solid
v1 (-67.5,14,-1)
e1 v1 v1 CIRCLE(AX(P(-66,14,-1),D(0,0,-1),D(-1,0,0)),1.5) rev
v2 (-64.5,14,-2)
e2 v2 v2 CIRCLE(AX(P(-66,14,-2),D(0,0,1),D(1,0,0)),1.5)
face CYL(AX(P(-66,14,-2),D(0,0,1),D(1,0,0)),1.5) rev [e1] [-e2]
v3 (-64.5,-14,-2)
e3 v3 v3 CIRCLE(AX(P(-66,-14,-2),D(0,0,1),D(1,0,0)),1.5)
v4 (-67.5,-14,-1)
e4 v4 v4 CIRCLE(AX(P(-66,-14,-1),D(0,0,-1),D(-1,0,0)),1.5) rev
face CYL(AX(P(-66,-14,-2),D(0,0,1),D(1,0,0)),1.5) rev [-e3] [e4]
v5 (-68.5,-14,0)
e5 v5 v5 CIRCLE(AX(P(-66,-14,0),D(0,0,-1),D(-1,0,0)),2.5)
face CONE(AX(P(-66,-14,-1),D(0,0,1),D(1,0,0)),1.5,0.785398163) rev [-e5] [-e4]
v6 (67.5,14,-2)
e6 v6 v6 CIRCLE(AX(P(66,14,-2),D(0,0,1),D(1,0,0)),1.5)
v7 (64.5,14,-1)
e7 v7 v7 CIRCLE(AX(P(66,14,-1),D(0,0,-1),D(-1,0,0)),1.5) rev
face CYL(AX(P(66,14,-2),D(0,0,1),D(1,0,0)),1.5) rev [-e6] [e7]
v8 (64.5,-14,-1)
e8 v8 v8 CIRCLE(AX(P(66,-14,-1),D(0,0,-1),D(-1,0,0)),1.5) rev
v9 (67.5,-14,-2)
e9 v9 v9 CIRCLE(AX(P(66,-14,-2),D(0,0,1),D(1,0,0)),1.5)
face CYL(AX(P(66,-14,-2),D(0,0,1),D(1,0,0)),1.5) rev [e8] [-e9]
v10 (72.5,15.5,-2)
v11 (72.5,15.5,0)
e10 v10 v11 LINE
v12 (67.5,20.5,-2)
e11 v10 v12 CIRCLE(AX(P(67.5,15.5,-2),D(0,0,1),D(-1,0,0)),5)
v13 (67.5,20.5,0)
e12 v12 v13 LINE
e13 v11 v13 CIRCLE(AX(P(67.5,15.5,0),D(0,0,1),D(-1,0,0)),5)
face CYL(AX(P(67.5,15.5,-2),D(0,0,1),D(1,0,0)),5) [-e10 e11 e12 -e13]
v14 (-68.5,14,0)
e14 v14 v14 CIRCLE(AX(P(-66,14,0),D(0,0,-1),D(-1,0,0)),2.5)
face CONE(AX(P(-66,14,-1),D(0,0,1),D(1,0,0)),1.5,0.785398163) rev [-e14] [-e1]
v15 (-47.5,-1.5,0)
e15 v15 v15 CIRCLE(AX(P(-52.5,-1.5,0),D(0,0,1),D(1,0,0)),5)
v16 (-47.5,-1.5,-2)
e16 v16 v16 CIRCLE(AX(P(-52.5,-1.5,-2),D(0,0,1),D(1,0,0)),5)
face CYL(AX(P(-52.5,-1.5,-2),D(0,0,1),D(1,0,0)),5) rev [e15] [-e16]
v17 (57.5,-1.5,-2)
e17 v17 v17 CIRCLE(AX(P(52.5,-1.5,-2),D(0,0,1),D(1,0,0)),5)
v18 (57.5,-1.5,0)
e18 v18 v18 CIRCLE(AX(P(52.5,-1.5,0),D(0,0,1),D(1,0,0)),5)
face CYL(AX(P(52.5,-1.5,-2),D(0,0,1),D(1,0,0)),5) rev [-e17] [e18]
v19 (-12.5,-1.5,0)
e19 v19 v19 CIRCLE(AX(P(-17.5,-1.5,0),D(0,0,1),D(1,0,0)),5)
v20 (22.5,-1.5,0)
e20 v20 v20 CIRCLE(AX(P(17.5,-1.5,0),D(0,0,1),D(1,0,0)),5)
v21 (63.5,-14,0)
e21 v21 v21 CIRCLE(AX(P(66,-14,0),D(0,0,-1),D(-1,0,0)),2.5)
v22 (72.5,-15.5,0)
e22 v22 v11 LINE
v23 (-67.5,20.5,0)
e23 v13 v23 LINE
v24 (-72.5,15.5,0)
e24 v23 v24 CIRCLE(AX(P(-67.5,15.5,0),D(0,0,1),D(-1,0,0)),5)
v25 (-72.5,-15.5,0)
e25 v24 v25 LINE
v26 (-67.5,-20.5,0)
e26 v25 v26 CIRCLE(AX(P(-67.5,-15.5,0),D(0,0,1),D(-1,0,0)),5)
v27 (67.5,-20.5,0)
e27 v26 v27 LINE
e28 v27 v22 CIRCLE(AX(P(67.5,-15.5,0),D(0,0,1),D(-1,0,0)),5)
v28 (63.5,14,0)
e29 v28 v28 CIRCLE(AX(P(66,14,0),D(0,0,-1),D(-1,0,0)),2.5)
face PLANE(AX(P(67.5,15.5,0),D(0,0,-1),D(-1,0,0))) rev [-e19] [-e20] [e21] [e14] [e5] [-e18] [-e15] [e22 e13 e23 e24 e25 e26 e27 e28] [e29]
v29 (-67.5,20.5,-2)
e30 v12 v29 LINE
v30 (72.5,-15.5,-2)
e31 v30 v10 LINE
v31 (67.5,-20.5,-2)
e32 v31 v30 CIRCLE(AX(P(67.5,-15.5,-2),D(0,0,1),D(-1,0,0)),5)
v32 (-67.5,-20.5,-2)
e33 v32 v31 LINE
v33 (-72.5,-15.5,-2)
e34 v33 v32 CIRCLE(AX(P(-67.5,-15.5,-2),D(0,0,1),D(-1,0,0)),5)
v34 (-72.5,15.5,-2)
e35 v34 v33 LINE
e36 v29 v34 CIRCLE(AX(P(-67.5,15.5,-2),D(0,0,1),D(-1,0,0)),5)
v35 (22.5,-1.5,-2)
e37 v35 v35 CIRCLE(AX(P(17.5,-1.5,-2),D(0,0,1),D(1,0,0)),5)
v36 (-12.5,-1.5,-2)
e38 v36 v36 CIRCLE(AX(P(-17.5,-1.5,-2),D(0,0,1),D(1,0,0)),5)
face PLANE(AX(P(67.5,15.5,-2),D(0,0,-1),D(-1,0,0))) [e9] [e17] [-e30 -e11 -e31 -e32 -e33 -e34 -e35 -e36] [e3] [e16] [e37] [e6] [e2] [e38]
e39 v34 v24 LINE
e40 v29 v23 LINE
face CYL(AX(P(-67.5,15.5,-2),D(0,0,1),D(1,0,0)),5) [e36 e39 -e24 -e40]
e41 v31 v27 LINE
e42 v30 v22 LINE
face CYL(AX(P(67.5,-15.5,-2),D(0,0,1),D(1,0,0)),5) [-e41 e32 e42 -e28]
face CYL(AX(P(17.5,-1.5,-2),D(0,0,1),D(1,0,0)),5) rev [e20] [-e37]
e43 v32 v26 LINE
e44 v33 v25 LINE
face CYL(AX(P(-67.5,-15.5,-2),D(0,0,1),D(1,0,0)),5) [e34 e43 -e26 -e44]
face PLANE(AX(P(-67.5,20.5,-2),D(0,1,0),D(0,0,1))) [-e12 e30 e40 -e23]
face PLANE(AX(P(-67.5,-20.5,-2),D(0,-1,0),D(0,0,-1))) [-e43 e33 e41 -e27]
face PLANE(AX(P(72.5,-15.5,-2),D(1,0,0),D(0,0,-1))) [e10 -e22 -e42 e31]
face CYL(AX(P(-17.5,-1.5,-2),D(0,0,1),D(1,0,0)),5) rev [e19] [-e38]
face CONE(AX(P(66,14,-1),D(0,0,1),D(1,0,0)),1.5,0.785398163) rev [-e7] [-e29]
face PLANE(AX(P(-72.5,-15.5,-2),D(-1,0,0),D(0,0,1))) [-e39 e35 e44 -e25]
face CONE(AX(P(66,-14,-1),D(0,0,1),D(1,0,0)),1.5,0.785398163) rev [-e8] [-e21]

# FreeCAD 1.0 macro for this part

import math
import FreeCAD as App
import Part
import Sketcher
Q = App.Units.Quantity


def edges_at(feature, points):
    """Names of the edges that pass closest to the given points."""
    edges = feature.Shape.Edges
    near = lambda p: min(range(len(edges)), key=lambda i: edges[i].distToShape(Part.Vertex(*p))[0])
    return sorted({f"Edge{near(p) + 1}" for p in points})

doc = App.newDocument("Part")
params = doc.addObject("Spreadsheet::Sheet", "Params")
for row, (alias, value) in enumerate([
    ("sketch1_diameter", "3 mm"),
    ("sketch1_diameter2", "10 mm"),
    ("sketch1_width", "135 mm"),
    ("sketch1_height", "31 mm"),
    ("pad1_length", "2 mm"),
    ("chamfer_size", "1 mm"),
], start=1):
    params.set(f"A{row}", alias)
    params.set(f"B{row}", "=" + value)
    params.setAlias(f"B{row}", alias)

body = doc.addObject("PartDesign::Body", "Body")

# Sketch on XY plane
sketch1 = body.newObject("Sketcher::SketchObject", "Sketch")
sketch1.AttachmentSupport = (doc.getObject("XY_Plane"), [""])
sketch1.MapMode = "FlatFace"
sketch1.addGeometry(Part.LineSegment(App.Vector(-67.5, -20.5, 0), App.Vector(67.5, -20.5, 0)), False)
sketch1.addGeometry(Part.ArcOfCircle(Part.Circle(App.Vector(67.5, -15.5, 0), App.Vector(0, 0, 1), 5), math.radians(-90), math.radians(0)), False)
sketch1.addGeometry(Part.LineSegment(App.Vector(72.5, -15.5, 0), App.Vector(72.5, 15.5, 0)), False)
sketch1.addGeometry(Part.ArcOfCircle(Part.Circle(App.Vector(67.5, 15.5, 0), App.Vector(0, 0, 1), 5), math.radians(0), math.radians(90)), False)
sketch1.addGeometry(Part.LineSegment(App.Vector(67.5, 20.5, 0), App.Vector(-67.5, 20.5, 0)), False)
sketch1.addGeometry(Part.ArcOfCircle(Part.Circle(App.Vector(-67.5, 15.5, 0), App.Vector(0, 0, 1), 5), math.radians(90), math.radians(180)), False)
sketch1.addGeometry(Part.LineSegment(App.Vector(-72.5, 15.5, 0), App.Vector(-72.5, -15.5, 0)), False)
sketch1.addGeometry(Part.ArcOfCircle(Part.Circle(App.Vector(-67.5, -15.5, 0), App.Vector(0, 0, 1), 5), math.radians(180), math.radians(270)), False)
sketch1.addGeometry(Part.Circle(App.Vector(-66, -14, 0), App.Vector(0, 0, 1), 1.5), False)
sketch1.addGeometry(Part.Circle(App.Vector(-52.5, -1.5, 0), App.Vector(0, 0, 1), 5), False)
sketch1.addGeometry(Part.Circle(App.Vector(-17.5, -1.5, 0), App.Vector(0, 0, 1), 5), False)
sketch1.addGeometry(Part.Circle(App.Vector(66, -14, 0), App.Vector(0, 0, 1), 1.5), False)
sketch1.addGeometry(Part.Circle(App.Vector(17.5, -1.5, 0), App.Vector(0, 0, 1), 5), False)
sketch1.addGeometry(Part.Circle(App.Vector(52.5, -1.5, 0), App.Vector(0, 0, 1), 5), False)
sketch1.addGeometry(Part.Circle(App.Vector(-66, 14, 0), App.Vector(0, 0, 1), 1.5), False)
sketch1.addGeometry(Part.Circle(App.Vector(66, 14, 0), App.Vector(0, 0, 1), 1.5), False)
sketch1.addConstraint(Sketcher.Constraint("Tangent", 0, 2, 1, 1))
sketch1.addConstraint(Sketcher.Constraint("Tangent", 1, 2, 2, 1))
sketch1.addConstraint(Sketcher.Constraint("Tangent", 2, 2, 3, 1))
sketch1.addConstraint(Sketcher.Constraint("Tangent", 3, 2, 4, 1))
sketch1.addConstraint(Sketcher.Constraint("Tangent", 4, 2, 5, 1))
sketch1.addConstraint(Sketcher.Constraint("Tangent", 5, 2, 6, 1))
sketch1.addConstraint(Sketcher.Constraint("Tangent", 6, 2, 7, 1))
sketch1.addConstraint(Sketcher.Constraint("Tangent", 7, 2, 0, 1))
sketch1.addConstraint(Sketcher.Constraint("Horizontal", 0))
sketch1.addConstraint(Sketcher.Constraint("Vertical", 2))
sketch1.addConstraint(Sketcher.Constraint("Horizontal", 4))
sketch1.addConstraint(Sketcher.Constraint("Vertical", 6))
sketch1.addConstraint(Sketcher.Constraint("Equal", 1, 3))
sketch1.addConstraint(Sketcher.Constraint("Equal", 3, 5))
sketch1.addConstraint(Sketcher.Constraint("Equal", 5, 7))
sketch1.addConstraint(Sketcher.Constraint("Equal", 7, 9))
sketch1.addConstraint(Sketcher.Constraint("Equal", 9, 10))
sketch1.addConstraint(Sketcher.Constraint("Equal", 8, 11))
sketch1.addConstraint(Sketcher.Constraint("Equal", 10, 12))
sketch1.addConstraint(Sketcher.Constraint("Equal", 12, 13))
sketch1.addConstraint(Sketcher.Constraint("Equal", 11, 14))
sketch1.addConstraint(Sketcher.Constraint("Equal", 14, 15))
sketch1.addConstraint(Sketcher.Constraint("Symmetric", 1, 3, 5, 3, -1, 1))
sketch1.addConstraint(Sketcher.Constraint("Symmetric", 11, 3, 14, 3, -1, 1))
sketch1.addConstraint(Sketcher.Constraint("Symmetric", 8, 3, 15, 3, -1, 1))
sketch1.addConstraint(Sketcher.Constraint("Symmetric", 8, 3, 11, 3, -2))
sketch1.addConstraint(Sketcher.Constraint("Symmetric", 10, 3, 12, 3, -2))
sketch1.addConstraint(Sketcher.Constraint("Symmetric", 9, 3, 13, 3, -2))
sketch1.addConstraint(Sketcher.Constraint("Horizontal", 9, 3, 10, 3))
sketch1.addConstraint(Sketcher.Constraint("Diameter", 8, Q("3 mm")))
sketch1.addConstraint(Sketcher.Constraint("Diameter", 9, Q("10 mm")))
sketch1.addConstraint(Sketcher.Constraint("DistanceX", 0, 1, 0, 2, Q("135 mm")))
sketch1.addConstraint(Sketcher.Constraint("DistanceY", 2, 1, 2, 2, Q("31 mm")))
sketch1.addConstraint(Sketcher.Constraint("DistanceX", 8, 3, -1, 1, Q("66 mm")))
sketch1.addConstraint(Sketcher.Constraint("DistanceY", 8, 3, -1, 1, Q("14 mm")))
sketch1.addConstraint(Sketcher.Constraint("DistanceX", 7, 3, 9, 3, Q("15 mm")))
sketch1.addConstraint(Sketcher.Constraint("DistanceY", 7, 3, 9, 3, Q("14 mm")))
sketch1.addConstraint(Sketcher.Constraint("DistanceX", 9, 3, 10, 3, Q("35 mm")))
sketch1.setExpression("Constraints[29]", "Params.sketch1_diameter")
sketch1.setExpression("Constraints[30]", "Params.sketch1_diameter2")
sketch1.setExpression("Constraints[31]", "Params.sketch1_width")
sketch1.setExpression("Constraints[32]", "Params.sketch1_height")
pad1 = body.newObject("PartDesign::Pad", "Pad")
pad1.Profile = sketch1
pad1.setExpression("Length", "Params.pad1_length")
pad1.Reversed = True
doc.recompute()

chamfer = body.newObject("PartDesign::Chamfer", "Chamfer")
chamfer.Base = (pad1, edges_at(pad1, [
    (-67.5, 14, 0),
    (-67.5, -14, 0),
    (64.5, -14, 0),
    (64.5, 14, 0),
]))
chamfer.setExpression("Size", "Params.chamfer_size")

doc.recompute()
